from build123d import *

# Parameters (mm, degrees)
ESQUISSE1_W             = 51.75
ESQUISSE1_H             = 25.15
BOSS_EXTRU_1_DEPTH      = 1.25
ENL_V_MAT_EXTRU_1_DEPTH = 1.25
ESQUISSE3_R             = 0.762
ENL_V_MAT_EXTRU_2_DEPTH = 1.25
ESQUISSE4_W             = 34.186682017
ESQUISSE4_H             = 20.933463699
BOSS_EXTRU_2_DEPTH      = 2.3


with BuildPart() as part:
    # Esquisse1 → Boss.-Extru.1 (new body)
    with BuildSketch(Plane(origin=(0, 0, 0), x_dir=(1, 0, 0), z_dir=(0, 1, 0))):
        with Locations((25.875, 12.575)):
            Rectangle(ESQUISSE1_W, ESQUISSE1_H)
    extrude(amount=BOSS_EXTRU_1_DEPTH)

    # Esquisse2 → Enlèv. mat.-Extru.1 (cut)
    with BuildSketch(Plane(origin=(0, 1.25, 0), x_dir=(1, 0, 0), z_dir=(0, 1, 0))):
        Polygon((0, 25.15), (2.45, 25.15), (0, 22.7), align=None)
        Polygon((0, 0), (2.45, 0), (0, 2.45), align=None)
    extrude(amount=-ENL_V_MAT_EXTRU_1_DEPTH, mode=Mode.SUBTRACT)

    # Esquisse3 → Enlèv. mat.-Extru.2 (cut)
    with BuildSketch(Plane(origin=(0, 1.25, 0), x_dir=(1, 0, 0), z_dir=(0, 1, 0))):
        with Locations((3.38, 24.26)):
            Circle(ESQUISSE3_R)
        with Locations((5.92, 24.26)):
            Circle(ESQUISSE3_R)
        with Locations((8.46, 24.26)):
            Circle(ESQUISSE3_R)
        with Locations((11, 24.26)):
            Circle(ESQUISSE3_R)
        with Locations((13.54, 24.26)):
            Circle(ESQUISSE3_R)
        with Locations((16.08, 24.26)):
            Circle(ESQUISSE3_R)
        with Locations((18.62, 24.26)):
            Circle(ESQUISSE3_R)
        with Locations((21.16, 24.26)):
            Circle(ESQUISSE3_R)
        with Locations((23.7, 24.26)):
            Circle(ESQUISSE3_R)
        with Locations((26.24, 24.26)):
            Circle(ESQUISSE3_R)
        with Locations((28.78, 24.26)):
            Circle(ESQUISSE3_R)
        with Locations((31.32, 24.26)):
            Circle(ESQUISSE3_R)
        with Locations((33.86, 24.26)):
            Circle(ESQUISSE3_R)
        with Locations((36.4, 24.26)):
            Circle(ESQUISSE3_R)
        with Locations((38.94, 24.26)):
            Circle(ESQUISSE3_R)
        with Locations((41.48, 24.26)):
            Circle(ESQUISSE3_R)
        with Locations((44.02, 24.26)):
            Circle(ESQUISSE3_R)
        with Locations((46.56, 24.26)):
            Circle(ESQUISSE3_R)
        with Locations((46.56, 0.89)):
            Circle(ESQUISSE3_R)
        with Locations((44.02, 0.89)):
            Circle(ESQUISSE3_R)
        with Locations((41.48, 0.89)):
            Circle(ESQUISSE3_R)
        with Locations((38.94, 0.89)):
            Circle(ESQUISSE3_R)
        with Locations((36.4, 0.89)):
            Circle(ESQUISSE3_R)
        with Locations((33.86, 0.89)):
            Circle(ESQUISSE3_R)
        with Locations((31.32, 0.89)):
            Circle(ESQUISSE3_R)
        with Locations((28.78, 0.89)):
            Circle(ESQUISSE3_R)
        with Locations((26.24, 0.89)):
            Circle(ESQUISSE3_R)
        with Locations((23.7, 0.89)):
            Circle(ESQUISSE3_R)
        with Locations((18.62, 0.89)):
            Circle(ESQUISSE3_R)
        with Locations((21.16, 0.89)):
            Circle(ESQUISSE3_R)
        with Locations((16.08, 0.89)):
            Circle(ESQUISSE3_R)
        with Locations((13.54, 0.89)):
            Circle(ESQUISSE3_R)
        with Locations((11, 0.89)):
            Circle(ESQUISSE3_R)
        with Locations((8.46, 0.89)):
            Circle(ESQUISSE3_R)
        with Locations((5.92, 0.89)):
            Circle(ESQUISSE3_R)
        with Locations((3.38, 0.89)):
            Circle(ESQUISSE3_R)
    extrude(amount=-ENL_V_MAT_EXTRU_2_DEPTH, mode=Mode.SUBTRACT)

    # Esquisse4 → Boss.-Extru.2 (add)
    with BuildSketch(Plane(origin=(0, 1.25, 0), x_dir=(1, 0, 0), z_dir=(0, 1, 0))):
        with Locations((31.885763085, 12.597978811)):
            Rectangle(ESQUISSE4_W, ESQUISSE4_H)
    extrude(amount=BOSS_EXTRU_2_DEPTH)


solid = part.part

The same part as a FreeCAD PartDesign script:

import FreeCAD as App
import Part
import Sketcher
from FreeCAD import Vector


def add_polygon(sketch, points):
    """Adds a closed chain of lines whose ends are joined by coincident constraints."""
    first, n = sketch.GeometryCount, len(points)
    for a, b in zip(points, points[1:] + points[:1]):
        sketch.addGeometry(Part.LineSegment(App.Vector(*a, 0), App.Vector(*b, 0)), False)
    for i in range(n):
        sketch.addConstraint(Sketcher.Constraint("Coincident", first + i, 2, first + (i + 1) % n, 1))

doc = App.newDocument("Part")
body = doc.addObject("PartDesign::Body", "Body")

sketch1 = doc.addObject("Sketcher::SketchObject", "Sketch")
body.addObject(sketch1)
sketch1.AttachmentSupport = (doc.XZ_Plane, [""])
sketch1.MapMode = "FlatFace"
add_polygon(sketch1, [(0, -25.15), (0, 0), (51.75, 0), (51.75, -25.15)])
sketch1.addConstraint([
    Sketcher.Constraint("Vertical", 0),
    Sketcher.Constraint("Horizontal", 1),
    Sketcher.Constraint("Vertical", 2),
    Sketcher.Constraint("Horizontal", 3),
    Sketcher.Constraint("Coincident", 0, 2, -1, 1),
    Sketcher.Constraint("DistanceX", 1, 1, 1, 2, 51.75),
    Sketcher.Constraint("DistanceY", 0, 1, 0, 2, 25.15),
])
pad1 = doc.addObject("PartDesign::Pad", "Pad")
body.addObject(pad1)
pad1.Profile = sketch1
pad1.Length = 1.25
pad1.Reversed = True

sketch2 = doc.addObject("Sketcher::SketchObject", "Sketch001")
body.addObject(sketch2)
sketch2.AttachmentSupport = (doc.XZ_Plane, [""])
sketch2.MapMode = "FlatFace"
sketch2.AttachmentOffset = App.Placement(Vector(0, 0, -1.25), App.Rotation())
add_polygon(sketch2, [(2.45, -25.15), (0, -25.15), (0, -22.7)])
add_polygon(sketch2, [(0, 0), (2.45, 0), (0, -2.45)])
sketch2.addConstraint([
    Sketcher.Constraint("Horizontal", 0),
    Sketcher.Constraint("Vertical", 1),
    Sketcher.Constraint("Horizontal", 3),
    Sketcher.Constraint("Vertical", 5),
    Sketcher.Constraint("Coincident", 5, 2, -1, 1),
    Sketcher.Constraint("PointOnObject", 0, 2, -2),
    Sketcher.Constraint("Perpendicular", 2, 4),
    Sketcher.Constraint("Vertical", 2, 2, 3, 2),
    Sketcher.Constraint("Equal", 3, 1),
    Sketcher.Constraint("DistanceX", 0, 2, 0, 1, 2.45),
    Sketcher.Constraint("DistanceY", 1, 2, -1, 1, 22.7),
])
pocket1 = doc.addObject("PartDesign::Pocket", "Pocket")
body.addObject(pocket1)
pocket1.Profile = sketch2
pocket1.Length = 1.25
pocket1.Reversed = True

sketch3 = doc.addObject("Sketcher::SketchObject", "Sketch002")
body.addObject(sketch3)
sketch3.AttachmentSupport = (doc.XZ_Plane, [""])
sketch3.MapMode = "FlatFace"
sketch3.AttachmentOffset = App.Placement(Vector(0, 0, -1.25), App.Rotation())
sketch3.addGeometry([
    Part.Circle(Vector(3.38, -24.26, 0), Vector(0, 0, 1), 0.762),
    Part.Circle(Vector(5.92, -24.26, 0), Vector(0, 0, 1), 0.762),
    Part.Circle(Vector(8.46, -24.26, 0), Vector(0, 0, 1), 0.762),
    Part.Circle(Vector(11, -24.26, 0), Vector(0, 0, 1), 0.762),
    Part.Circle(Vector(13.54, -24.26, 0), Vector(0, 0, 1), 0.762),
    Part.Circle(Vector(16.08, -24.26, 0), Vector(0, 0, 1), 0.762),
    Part.Circle(Vector(18.62, -24.26, 0), Vector(0, 0, 1), 0.762),
    Part.Circle(Vector(21.16, -24.26, 0), Vector(0, 0, 1), 0.762),
    Part.Circle(Vector(23.7, -24.26, 0), Vector(0, 0, 1), 0.762),
    Part.Circle(Vector(26.24, -24.26, 0), Vector(0, 0, 1), 0.762),
    Part.Circle(Vector(28.78, -24.26, 0), Vector(0, 0, 1), 0.762),
    Part.Circle(Vector(31.32, -24.26, 0), Vector(0, 0, 1), 0.762),
    Part.Circle(Vector(33.86, -24.26, 0), Vector(0, 0, 1), 0.762),
    Part.Circle(Vector(36.4, -24.26, 0), Vector(0, 0, 1), 0.762),
    Part.Circle(Vector(38.94, -24.26, 0), Vector(0, 0, 1), 0.762),
    Part.Circle(Vector(41.48, -24.26, 0), Vector(0, 0, 1), 0.762),
    Part.Circle(Vector(44.02, -24.26, 0), Vector(0, 0, 1), 0.762),
    Part.Circle(Vector(46.56, -24.26, 0), Vector(0, 0, 1), 0.762),
    Part.Circle(Vector(46.56, -0.89, 0), Vector(0, 0, 1), 0.762),
    Part.Circle(Vector(44.02, -0.89, 0), Vector(0, 0, 1), 0.762),
    Part.Circle(Vector(41.48, -0.89, 0), Vector(0, 0, 1), 0.762),
    Part.Circle(Vector(38.94, -0.89, 0), Vector(0, 0, 1), 0.762),
    Part.Circle(Vector(36.4, -0.89, 0), Vector(0, 0, 1), 0.762),
    Part.Circle(Vector(33.86, -0.89, 0), Vector(0, 0, 1), 0.762),
    Part.Circle(Vector(31.32, -0.89, 0), Vector(0, 0, 1), 0.762),
    Part.Circle(Vector(28.78, -0.89, 0), Vector(0, 0, 1), 0.762),
    Part.Circle(Vector(26.24, -0.89, 0), Vector(0, 0, 1), 0.762),
    Part.Circle(Vector(23.7, -0.89, 0), Vector(0, 0, 1), 0.762),
    Part.Circle(Vector(18.62, -0.89, 0), Vector(0, 0, 1), 0.762),
    Part.Circle(Vector(21.16, -0.89, 0), Vector(0, 0, 1), 0.762),
    Part.Circle(Vector(16.08, -0.89, 0), Vector(0, 0, 1), 0.762),
    Part.Circle(Vector(13.54, -0.89, 0), Vector(0, 0, 1), 0.762),
    Part.Circle(Vector(11, -0.89, 0), Vector(0, 0, 1), 0.762),
    Part.Circle(Vector(8.46, -0.89, 0), Vector(0, 0, 1), 0.762),
    Part.Circle(Vector(5.92, -0.89, 0), Vector(0, 0, 1), 0.762),
    Part.Circle(Vector(3.38, -0.89, 0), Vector(0, 0, 1), 0.762),
], False)
sketch3.addConstraint([
    Sketcher.Constraint("Equal", 0, 1),
    Sketcher.Constraint("Equal", 1, 2),
    Sketcher.Constraint("Equal", 2, 3),
    Sketcher.Constraint("Equal", 3, 4),
    Sketcher.Constraint("Equal", 4, 5),
    Sketcher.Constraint("Equal", 5, 6),
    Sketcher.Constraint("Equal", 6, 7),
    Sketcher.Constraint("Equal", 7, 8),
    Sketcher.Constraint("Equal", 8, 9),
    Sketcher.Constraint("Equal", 9, 10),
    Sketcher.Constraint("Equal", 10, 11),
    Sketcher.Constraint("Equal", 11, 12),
    Sketcher.Constraint("Equal", 12, 13),
    Sketcher.Constraint("Equal", 13, 14),
    Sketcher.Constraint("Equal", 14, 15),
    Sketcher.Constraint("Equal", 15, 16),
    Sketcher.Constraint("Equal", 16, 17),
    Sketcher.Constraint("Equal", 17, 18),
    Sketcher.Constraint("Equal", 18, 19),
    Sketcher.Constraint("Equal", 19, 20),
    Sketcher.Constraint("Equal", 20, 21),
    Sketcher.Constraint("Equal", 21, 22),
    Sketcher.Constraint("Equal", 22, 23),
    Sketcher.Constraint("Equal", 23, 24),
    Sketcher.Constraint("Equal", 24, 25),
    Sketcher.Constraint("Equal", 25, 26),
    Sketcher.Constraint("Equal", 26, 27),
    Sketcher.Constraint("Equal", 27, 28),
    Sketcher.Constraint("Equal", 28, 29),
    Sketcher.Constraint("Equal", 29, 30),
    Sketcher.Constraint("Equal", 30, 31),
    Sketcher.Constraint("Equal", 31, 32),
    Sketcher.Constraint("Equal", 32, 33),
    Sketcher.Constraint("Equal", 33, 34),
    Sketcher.Constraint("Equal", 34, 35),
    Sketcher.Constraint("Horizontal", 0, 3, 1, 3),
    Sketcher.Constraint("Horizontal", 1, 3, 2, 3),
    Sketcher.Constraint("Horizontal", 2, 3, 3, 3),
    Sketcher.Constraint("Horizontal", 3, 3, 4, 3),
    Sketcher.Constraint("Horizontal", 4, 3, 5, 3),
    Sketcher.Constraint("Horizontal", 5, 3, 6, 3),
    Sketcher.Constraint("Horizontal", 6, 3, 7, 3),
    Sketcher.Constraint("Horizontal", 7, 3, 8, 3),
    Sketcher.Constraint("Horizontal", 8, 3, 9, 3),
    Sketcher.Constraint("Horizontal", 9, 3, 10, 3),
    Sketcher.Constraint("Horizontal", 10, 3, 11, 3),
    Sketcher.Constraint("Horizontal", 11, 3, 12, 3),
    Sketcher.Constraint("Horizontal", 12, 3, 13, 3),
    Sketcher.Constraint("Horizontal", 13, 3, 14, 3),
    Sketcher.Constraint("Horizontal", 14, 3, 15, 3),
    Sketcher.Constraint("Horizontal", 15, 3, 16, 3),
    Sketcher.Constraint("Horizontal", 16, 3, 17, 3),
    Sketcher.Constraint("Horizontal", 18, 3, 19, 3),
    Sketcher.Constraint("Horizontal", 19, 3, 20, 3),
    Sketcher.Constraint("Horizontal", 20, 3, 21, 3),
    Sketcher.Constraint("Horizontal", 21, 3, 22, 3),
    Sketcher.Constraint("Horizontal", 22, 3, 23, 3),
    Sketcher.Constraint("Horizontal", 23, 3, 24, 3),
    Sketcher.Constraint("Horizontal", 24, 3, 25, 3),
    Sketcher.Constraint("Horizontal", 25, 3, 26, 3),
    Sketcher.Constraint("Horizontal", 26, 3, 27, 3),
    Sketcher.Constraint("Horizontal", 27, 3, 28, 3),
    Sketcher.Constraint("Horizontal", 28, 3, 29, 3),
    Sketcher.Constraint("Horizontal", 29, 3, 30, 3),
    Sketcher.Constraint("Horizontal", 30, 3, 31, 3),
    Sketcher.Constraint("Horizontal", 31, 3, 32, 3),
    Sketcher.Constraint("Horizontal", 32, 3, 33, 3),
    Sketcher.Constraint("Horizontal", 33, 3, 34, 3),
    Sketcher.Constraint("Horizontal", 34, 3, 35, 3),
    Sketcher.Constraint("Vertical", 17, 3, 18, 3),
    Sketcher.Constraint("Vertical", 16, 3, 19, 3),
    Sketcher.Constraint("Vertical", 15, 3, 20, 3),
    Sketcher.Constraint("Vertical", 14, 3, 21, 3),
    Sketcher.Constraint("Vertical", 13, 3, 22, 3),
    Sketcher.Constraint("Vertical", 12, 3, 23, 3),
    Sketcher.Constraint("Vertical", 11, 3, 24, 3),
    Sketcher.Constraint("Vertical", 10, 3, 25, 3),
    Sketcher.Constraint("Vertical", 9, 3, 26, 3),
    Sketcher.Constraint("Vertical", 8, 3, 27, 3),
    Sketcher.Constraint("Vertical", 6, 3, 28, 3),
    Sketcher.Constraint("Vertical", 7, 3, 29, 3),
    Sketcher.Constraint("Vertical", 5, 3, 30, 3),
    Sketcher.Constraint("Vertical", 4, 3, 31, 3),
    Sketcher.Constraint("Vertical", 3, 3, 32, 3),
    Sketcher.Constraint("Vertical", 2, 3, 33, 3),
    Sketcher.Constraint("Vertical", 1, 3, 34, 3),
    Sketcher.Constraint("Vertical", 0, 3, 35, 3),
    Sketcher.Constraint("Diameter", 0, 1.524),
    Sketcher.Constraint("DistanceX", -1, 1, 3, 3, 11.0),
    Sketcher.Constraint("DistanceX", -1, 1, 8, 3, 23.7),
    Sketcher.Constraint("DistanceX", -1, 1, 13, 3, 36.4),
    Sketcher.Constraint("DistanceX", 0, 3, 5, 3, 12.7),
    Sketcher.Constraint("DistanceX", 1, 3, 6, 3, 12.7),
    Sketcher.Constraint("DistanceX", 2, 3, 7, 3, 12.7),
    Sketcher.Constraint("DistanceX", 4, 3, 9, 3, 12.7),
    Sketcher.Constraint("DistanceX", 5, 3, 10, 3, 12.7),
    Sketcher.Constraint("DistanceX", 6, 3, 11, 3, 12.7),
    Sketcher.Constraint("DistanceX", 7, 3, 12, 3, 12.7),
    Sketcher.Constraint("DistanceX", 9, 3, 14, 3, 12.7),
    Sketcher.Constraint("DistanceX", 10, 3, 15, 3, 12.7),
    Sketcher.Constraint("DistanceX", 11, 3, 16, 3, 12.7),
    Sketcher.Constraint("DistanceX", 12, 3, 17, 3, 12.7),
    Sketcher.Constraint("DistanceX", -1, 1, 0, 3, 3.38),
    Sketcher.Constraint("DistanceY", 0, 3, -1, 1, 24.26),
    Sketcher.Constraint("DistanceX", -1, 1, 1, 3, 5.92),
    Sketcher.Constraint("DistanceX", -1, 1, 2, 3, 8.46),
    Sketcher.Constraint("DistanceX", -1, 1, 4, 3, 13.54),
    Sketcher.Constraint("DistanceY", 18, 3, -1, 1, 0.89),
])
pocket2 = doc.addObject("PartDesign::Pocket", "Pocket001")
body.addObject(pocket2)
pocket2.Profile = sketch3
pocket2.Length = 1.25
pocket2.Reversed = True

sketch4 = doc.addObject("Sketcher::SketchObject", "Sketch003")
body.addObject(sketch4)
sketch4.AttachmentSupport = (doc.XZ_Plane, [""])
sketch4.MapMode = "FlatFace"
sketch4.AttachmentOffset = App.Placement(Vector(0, 0, -1.25), App.Rotation())
add_polygon(sketch4, [(14.792422, -23.064711), (14.792422, -2.131247), (48.979104, -2.131247), (48.979104, -23.064711)])
sketch4.addConstraint([
    Sketcher.Constraint("Vertical", 0),
    Sketcher.Constraint("Horizontal", 1),
    Sketcher.Constraint("Vertical", 2),
    Sketcher.Constraint("Horizontal", 3),
    Sketcher.Constraint("DistanceX", 1, 1, 1, 2, 34.186682),
    Sketcher.Constraint("DistanceY", 0, 1, 0, 2, 20.933464),
    Sketcher.Constraint("DistanceY", 2, 2, -1, 1, 23.064711),
    Sketcher.Constraint("DistanceX", -1, 1, 0, 2, 14.792422),
])
pad2 = doc.addObject("PartDesign::Pad", "Pad001")
body.addObject(pad2)
pad2.Profile = sketch4
pad2.Length = 2.3
pad2.Reversed = True

doc.recompute()
